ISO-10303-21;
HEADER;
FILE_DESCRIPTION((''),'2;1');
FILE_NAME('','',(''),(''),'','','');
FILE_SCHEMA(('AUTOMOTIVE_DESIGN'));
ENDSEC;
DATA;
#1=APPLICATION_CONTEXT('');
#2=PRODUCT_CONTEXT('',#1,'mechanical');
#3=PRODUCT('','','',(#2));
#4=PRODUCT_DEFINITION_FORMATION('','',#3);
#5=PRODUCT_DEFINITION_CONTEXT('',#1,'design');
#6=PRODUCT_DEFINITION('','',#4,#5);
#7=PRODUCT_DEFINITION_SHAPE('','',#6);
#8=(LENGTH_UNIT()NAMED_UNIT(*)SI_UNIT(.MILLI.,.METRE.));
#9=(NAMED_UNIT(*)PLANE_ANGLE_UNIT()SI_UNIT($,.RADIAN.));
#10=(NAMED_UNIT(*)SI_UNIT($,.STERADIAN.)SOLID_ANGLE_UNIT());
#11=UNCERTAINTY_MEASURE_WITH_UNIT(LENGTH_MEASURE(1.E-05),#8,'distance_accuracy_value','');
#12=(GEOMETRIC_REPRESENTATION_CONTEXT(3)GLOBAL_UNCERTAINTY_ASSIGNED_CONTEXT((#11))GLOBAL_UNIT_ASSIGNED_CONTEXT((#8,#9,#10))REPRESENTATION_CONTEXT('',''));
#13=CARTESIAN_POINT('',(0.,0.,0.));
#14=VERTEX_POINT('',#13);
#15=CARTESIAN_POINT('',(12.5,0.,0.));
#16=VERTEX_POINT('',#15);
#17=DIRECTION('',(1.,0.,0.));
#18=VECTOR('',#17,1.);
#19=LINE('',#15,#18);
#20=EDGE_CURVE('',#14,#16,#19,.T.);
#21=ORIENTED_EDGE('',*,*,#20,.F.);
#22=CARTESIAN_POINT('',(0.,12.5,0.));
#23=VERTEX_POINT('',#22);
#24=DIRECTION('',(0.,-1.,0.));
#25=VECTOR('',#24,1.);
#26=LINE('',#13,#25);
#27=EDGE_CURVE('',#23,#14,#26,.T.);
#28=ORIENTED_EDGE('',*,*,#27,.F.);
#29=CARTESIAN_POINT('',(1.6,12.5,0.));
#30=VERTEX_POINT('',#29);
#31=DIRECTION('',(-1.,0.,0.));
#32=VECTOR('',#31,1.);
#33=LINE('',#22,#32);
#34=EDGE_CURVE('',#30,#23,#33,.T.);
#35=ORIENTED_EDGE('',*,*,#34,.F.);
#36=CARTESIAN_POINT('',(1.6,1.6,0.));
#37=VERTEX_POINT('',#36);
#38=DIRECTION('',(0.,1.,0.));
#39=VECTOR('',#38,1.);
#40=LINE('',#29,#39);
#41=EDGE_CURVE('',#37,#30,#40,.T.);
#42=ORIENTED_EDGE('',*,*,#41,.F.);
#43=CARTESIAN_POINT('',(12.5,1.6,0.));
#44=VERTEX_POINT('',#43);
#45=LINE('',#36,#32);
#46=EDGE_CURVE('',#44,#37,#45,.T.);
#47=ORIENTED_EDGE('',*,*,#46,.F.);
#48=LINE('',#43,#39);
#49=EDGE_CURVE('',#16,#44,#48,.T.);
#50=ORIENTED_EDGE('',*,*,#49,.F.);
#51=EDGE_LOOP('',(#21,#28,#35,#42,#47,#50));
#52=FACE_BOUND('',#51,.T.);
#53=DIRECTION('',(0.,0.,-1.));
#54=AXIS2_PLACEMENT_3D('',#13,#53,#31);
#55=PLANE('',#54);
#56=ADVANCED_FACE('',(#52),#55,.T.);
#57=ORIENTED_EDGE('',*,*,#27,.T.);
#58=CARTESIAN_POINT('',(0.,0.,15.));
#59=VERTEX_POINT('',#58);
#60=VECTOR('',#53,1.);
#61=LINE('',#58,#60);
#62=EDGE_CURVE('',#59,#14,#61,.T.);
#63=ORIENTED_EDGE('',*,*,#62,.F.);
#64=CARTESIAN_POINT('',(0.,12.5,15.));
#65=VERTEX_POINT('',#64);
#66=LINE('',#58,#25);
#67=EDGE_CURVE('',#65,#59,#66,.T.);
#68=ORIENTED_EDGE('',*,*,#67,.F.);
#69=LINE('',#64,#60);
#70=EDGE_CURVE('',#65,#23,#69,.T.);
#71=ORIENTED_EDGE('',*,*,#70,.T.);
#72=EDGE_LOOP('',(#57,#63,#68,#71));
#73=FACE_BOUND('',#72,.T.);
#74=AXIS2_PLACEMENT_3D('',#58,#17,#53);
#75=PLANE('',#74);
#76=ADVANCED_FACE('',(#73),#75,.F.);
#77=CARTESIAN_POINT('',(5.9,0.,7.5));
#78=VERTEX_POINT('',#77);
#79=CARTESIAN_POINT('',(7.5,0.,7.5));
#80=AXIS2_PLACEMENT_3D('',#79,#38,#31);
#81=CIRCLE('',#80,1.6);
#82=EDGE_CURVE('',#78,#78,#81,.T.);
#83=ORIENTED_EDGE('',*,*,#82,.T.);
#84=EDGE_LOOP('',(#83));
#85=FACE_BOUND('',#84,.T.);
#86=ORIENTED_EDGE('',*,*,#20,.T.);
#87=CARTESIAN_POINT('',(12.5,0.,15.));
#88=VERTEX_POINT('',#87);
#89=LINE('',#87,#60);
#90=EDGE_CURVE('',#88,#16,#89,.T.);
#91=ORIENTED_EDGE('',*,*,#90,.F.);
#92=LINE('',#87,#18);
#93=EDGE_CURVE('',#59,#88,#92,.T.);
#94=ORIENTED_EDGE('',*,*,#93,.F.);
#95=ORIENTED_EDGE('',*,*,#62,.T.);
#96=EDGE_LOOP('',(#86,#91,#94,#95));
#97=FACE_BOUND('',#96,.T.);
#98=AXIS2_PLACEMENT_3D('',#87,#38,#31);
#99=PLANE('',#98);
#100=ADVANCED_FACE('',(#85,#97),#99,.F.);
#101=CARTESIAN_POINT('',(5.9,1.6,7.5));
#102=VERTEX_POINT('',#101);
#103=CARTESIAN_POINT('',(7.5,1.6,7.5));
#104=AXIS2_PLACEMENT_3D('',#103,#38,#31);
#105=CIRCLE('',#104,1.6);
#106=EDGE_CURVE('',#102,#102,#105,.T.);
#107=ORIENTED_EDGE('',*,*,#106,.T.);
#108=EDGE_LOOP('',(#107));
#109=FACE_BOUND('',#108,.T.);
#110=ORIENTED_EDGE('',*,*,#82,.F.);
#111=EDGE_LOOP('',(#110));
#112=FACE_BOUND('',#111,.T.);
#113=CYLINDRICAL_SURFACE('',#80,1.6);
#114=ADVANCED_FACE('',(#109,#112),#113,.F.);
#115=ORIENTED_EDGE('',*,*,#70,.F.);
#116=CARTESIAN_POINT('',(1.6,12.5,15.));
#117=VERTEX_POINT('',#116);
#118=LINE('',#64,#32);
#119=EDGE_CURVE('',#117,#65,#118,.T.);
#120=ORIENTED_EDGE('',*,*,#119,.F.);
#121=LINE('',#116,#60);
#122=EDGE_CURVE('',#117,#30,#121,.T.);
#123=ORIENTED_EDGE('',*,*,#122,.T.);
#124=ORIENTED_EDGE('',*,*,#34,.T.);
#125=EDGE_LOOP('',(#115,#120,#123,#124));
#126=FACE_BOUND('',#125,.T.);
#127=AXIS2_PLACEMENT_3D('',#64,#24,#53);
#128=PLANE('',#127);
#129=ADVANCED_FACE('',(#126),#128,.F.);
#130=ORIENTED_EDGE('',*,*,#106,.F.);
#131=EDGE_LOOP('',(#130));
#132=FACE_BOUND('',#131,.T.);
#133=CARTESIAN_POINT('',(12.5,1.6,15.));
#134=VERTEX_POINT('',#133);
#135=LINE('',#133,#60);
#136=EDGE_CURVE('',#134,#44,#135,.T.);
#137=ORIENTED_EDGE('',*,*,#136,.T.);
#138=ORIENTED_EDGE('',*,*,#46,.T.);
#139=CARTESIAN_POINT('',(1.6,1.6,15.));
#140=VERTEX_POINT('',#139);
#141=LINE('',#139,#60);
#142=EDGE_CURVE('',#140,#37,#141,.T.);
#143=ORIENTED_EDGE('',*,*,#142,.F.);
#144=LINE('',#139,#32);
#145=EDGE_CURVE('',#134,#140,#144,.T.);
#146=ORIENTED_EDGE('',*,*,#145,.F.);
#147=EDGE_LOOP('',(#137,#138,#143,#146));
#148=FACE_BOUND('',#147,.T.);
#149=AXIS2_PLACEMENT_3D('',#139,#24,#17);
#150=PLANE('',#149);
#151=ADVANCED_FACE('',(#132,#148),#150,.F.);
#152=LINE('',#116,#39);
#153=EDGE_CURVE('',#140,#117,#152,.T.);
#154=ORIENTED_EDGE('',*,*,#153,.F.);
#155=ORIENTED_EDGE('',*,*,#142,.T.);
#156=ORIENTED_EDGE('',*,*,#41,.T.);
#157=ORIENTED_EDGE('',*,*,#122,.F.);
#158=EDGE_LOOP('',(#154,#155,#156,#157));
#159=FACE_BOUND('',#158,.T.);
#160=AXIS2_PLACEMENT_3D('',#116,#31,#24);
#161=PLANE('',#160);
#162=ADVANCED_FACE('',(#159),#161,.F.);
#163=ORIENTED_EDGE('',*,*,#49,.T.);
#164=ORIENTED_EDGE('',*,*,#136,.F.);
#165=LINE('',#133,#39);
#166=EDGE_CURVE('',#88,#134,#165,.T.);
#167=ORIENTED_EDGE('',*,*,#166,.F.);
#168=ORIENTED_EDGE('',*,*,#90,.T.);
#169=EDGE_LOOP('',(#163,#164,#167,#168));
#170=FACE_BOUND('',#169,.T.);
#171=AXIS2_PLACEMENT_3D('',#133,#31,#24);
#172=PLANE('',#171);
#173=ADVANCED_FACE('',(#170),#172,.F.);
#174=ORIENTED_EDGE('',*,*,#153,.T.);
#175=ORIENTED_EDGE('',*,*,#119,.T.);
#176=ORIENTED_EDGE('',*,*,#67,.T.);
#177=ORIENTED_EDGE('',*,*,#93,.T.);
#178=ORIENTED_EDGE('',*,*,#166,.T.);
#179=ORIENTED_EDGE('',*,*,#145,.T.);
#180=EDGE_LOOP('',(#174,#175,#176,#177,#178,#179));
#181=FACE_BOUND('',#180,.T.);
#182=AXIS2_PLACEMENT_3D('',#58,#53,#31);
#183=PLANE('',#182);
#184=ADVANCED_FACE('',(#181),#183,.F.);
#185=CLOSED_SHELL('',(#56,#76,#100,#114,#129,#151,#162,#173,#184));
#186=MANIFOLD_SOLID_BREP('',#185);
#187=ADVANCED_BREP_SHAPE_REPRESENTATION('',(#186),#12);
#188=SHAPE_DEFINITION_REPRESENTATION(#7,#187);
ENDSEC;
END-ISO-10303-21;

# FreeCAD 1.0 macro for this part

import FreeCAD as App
import Part
import Sketcher
from FreeCAD import Vector

doc = App.newDocument("Part")
body = doc.addObject("PartDesign::Body", "Body")

# Sketch on XY plane
sketch1 = doc.addObject("Sketcher::SketchObject", "Sketch")
body.addObject(sketch1)
sketch1.AttachmentSupport = (doc.XY_Plane, [""])
sketch1.MapMode = "FlatFace"
sketch1.addGeometry([
    Part.LineSegment(Vector(0, 12.5, 0), Vector(0, 0, 0)),  # 0
    Part.LineSegment(Vector(0, 0, 0), Vector(12.5, 0, 0)),  # 1
    Part.LineSegment(Vector(12.5, 0, 0), Vector(12.5, 1.6, 0)),  # 2
    Part.LineSegment(Vector(12.5, 1.6, 0), Vector(1.6, 1.6, 0)),  # 3
    Part.LineSegment(Vector(1.6, 1.6, 0), Vector(1.6, 12.5, 0)),  # 4
    Part.LineSegment(Vector(1.6, 12.5, 0), Vector(0, 12.5, 0)),  # 5
], False)
sketch1.addConstraint([
    Sketcher.Constraint("Coincident", 0, 2, 1, 1),
    Sketcher.Constraint("Coincident", 1, 2, 2, 1),
    Sketcher.Constraint("Coincident", 2, 2, 3, 1),
    Sketcher.Constraint("Coincident", 3, 2, 4, 1),
    Sketcher.Constraint("Coincident", 4, 2, 5, 1),
    Sketcher.Constraint("Coincident", 5, 2, 0, 1),
    Sketcher.Constraint("Vertical", 0),
    Sketcher.Constraint("Horizontal", 1),
    Sketcher.Constraint("Vertical", 2),
    Sketcher.Constraint("Horizontal", 3),
    Sketcher.Constraint("Vertical", 4),
    Sketcher.Constraint("Horizontal", 5),
    Sketcher.Constraint("Coincident", 0, 2, -1, 1),
    Sketcher.Constraint("Equal", 1, 0),
    Sketcher.Constraint("Equal", 5, 2),
    Sketcher.Constraint("DistanceX", 1, 1, 1, 2, 12.5),
    Sketcher.Constraint("DistanceX", 3, 2, 3, 1, 10.9),
])
pad1 = doc.addObject("PartDesign::Pad", "Pad")
body.addObject(pad1)
pad1.Profile = sketch1
pad1.Length = 15

# Sketch on XZ plane
sketch2 = doc.addObject("Sketcher::SketchObject", "Sketch001")
body.addObject(sketch2)
sketch2.AttachmentSupport = (doc.XZ_Plane, [""])
sketch2.MapMode = "FlatFace"
sketch2.AttachmentOffset = App.Placement(Vector(0, 0, -1.6), App.Rotation())
sketch2.addGeometry(Part.Circle(Vector(7.5, 7.5, 0), Vector(0, 0, 1), 1.6), False)
sketch2.addConstraint([
    Sketcher.Constraint("Diameter", 0, 3.2),
    Sketcher.Constraint("DistanceX", -1, 1, 0, 3, 7.5),
    Sketcher.Constraint("DistanceY", -1, 1, 0, 3, 7.5),
])
pocket1 = doc.addObject("PartDesign::Pocket", "Pocket")
body.addObject(pocket1)
pocket1.Profile = sketch2
pocket1.Type = "ThroughAll"
pocket1.Reversed = True

doc.recompute()
